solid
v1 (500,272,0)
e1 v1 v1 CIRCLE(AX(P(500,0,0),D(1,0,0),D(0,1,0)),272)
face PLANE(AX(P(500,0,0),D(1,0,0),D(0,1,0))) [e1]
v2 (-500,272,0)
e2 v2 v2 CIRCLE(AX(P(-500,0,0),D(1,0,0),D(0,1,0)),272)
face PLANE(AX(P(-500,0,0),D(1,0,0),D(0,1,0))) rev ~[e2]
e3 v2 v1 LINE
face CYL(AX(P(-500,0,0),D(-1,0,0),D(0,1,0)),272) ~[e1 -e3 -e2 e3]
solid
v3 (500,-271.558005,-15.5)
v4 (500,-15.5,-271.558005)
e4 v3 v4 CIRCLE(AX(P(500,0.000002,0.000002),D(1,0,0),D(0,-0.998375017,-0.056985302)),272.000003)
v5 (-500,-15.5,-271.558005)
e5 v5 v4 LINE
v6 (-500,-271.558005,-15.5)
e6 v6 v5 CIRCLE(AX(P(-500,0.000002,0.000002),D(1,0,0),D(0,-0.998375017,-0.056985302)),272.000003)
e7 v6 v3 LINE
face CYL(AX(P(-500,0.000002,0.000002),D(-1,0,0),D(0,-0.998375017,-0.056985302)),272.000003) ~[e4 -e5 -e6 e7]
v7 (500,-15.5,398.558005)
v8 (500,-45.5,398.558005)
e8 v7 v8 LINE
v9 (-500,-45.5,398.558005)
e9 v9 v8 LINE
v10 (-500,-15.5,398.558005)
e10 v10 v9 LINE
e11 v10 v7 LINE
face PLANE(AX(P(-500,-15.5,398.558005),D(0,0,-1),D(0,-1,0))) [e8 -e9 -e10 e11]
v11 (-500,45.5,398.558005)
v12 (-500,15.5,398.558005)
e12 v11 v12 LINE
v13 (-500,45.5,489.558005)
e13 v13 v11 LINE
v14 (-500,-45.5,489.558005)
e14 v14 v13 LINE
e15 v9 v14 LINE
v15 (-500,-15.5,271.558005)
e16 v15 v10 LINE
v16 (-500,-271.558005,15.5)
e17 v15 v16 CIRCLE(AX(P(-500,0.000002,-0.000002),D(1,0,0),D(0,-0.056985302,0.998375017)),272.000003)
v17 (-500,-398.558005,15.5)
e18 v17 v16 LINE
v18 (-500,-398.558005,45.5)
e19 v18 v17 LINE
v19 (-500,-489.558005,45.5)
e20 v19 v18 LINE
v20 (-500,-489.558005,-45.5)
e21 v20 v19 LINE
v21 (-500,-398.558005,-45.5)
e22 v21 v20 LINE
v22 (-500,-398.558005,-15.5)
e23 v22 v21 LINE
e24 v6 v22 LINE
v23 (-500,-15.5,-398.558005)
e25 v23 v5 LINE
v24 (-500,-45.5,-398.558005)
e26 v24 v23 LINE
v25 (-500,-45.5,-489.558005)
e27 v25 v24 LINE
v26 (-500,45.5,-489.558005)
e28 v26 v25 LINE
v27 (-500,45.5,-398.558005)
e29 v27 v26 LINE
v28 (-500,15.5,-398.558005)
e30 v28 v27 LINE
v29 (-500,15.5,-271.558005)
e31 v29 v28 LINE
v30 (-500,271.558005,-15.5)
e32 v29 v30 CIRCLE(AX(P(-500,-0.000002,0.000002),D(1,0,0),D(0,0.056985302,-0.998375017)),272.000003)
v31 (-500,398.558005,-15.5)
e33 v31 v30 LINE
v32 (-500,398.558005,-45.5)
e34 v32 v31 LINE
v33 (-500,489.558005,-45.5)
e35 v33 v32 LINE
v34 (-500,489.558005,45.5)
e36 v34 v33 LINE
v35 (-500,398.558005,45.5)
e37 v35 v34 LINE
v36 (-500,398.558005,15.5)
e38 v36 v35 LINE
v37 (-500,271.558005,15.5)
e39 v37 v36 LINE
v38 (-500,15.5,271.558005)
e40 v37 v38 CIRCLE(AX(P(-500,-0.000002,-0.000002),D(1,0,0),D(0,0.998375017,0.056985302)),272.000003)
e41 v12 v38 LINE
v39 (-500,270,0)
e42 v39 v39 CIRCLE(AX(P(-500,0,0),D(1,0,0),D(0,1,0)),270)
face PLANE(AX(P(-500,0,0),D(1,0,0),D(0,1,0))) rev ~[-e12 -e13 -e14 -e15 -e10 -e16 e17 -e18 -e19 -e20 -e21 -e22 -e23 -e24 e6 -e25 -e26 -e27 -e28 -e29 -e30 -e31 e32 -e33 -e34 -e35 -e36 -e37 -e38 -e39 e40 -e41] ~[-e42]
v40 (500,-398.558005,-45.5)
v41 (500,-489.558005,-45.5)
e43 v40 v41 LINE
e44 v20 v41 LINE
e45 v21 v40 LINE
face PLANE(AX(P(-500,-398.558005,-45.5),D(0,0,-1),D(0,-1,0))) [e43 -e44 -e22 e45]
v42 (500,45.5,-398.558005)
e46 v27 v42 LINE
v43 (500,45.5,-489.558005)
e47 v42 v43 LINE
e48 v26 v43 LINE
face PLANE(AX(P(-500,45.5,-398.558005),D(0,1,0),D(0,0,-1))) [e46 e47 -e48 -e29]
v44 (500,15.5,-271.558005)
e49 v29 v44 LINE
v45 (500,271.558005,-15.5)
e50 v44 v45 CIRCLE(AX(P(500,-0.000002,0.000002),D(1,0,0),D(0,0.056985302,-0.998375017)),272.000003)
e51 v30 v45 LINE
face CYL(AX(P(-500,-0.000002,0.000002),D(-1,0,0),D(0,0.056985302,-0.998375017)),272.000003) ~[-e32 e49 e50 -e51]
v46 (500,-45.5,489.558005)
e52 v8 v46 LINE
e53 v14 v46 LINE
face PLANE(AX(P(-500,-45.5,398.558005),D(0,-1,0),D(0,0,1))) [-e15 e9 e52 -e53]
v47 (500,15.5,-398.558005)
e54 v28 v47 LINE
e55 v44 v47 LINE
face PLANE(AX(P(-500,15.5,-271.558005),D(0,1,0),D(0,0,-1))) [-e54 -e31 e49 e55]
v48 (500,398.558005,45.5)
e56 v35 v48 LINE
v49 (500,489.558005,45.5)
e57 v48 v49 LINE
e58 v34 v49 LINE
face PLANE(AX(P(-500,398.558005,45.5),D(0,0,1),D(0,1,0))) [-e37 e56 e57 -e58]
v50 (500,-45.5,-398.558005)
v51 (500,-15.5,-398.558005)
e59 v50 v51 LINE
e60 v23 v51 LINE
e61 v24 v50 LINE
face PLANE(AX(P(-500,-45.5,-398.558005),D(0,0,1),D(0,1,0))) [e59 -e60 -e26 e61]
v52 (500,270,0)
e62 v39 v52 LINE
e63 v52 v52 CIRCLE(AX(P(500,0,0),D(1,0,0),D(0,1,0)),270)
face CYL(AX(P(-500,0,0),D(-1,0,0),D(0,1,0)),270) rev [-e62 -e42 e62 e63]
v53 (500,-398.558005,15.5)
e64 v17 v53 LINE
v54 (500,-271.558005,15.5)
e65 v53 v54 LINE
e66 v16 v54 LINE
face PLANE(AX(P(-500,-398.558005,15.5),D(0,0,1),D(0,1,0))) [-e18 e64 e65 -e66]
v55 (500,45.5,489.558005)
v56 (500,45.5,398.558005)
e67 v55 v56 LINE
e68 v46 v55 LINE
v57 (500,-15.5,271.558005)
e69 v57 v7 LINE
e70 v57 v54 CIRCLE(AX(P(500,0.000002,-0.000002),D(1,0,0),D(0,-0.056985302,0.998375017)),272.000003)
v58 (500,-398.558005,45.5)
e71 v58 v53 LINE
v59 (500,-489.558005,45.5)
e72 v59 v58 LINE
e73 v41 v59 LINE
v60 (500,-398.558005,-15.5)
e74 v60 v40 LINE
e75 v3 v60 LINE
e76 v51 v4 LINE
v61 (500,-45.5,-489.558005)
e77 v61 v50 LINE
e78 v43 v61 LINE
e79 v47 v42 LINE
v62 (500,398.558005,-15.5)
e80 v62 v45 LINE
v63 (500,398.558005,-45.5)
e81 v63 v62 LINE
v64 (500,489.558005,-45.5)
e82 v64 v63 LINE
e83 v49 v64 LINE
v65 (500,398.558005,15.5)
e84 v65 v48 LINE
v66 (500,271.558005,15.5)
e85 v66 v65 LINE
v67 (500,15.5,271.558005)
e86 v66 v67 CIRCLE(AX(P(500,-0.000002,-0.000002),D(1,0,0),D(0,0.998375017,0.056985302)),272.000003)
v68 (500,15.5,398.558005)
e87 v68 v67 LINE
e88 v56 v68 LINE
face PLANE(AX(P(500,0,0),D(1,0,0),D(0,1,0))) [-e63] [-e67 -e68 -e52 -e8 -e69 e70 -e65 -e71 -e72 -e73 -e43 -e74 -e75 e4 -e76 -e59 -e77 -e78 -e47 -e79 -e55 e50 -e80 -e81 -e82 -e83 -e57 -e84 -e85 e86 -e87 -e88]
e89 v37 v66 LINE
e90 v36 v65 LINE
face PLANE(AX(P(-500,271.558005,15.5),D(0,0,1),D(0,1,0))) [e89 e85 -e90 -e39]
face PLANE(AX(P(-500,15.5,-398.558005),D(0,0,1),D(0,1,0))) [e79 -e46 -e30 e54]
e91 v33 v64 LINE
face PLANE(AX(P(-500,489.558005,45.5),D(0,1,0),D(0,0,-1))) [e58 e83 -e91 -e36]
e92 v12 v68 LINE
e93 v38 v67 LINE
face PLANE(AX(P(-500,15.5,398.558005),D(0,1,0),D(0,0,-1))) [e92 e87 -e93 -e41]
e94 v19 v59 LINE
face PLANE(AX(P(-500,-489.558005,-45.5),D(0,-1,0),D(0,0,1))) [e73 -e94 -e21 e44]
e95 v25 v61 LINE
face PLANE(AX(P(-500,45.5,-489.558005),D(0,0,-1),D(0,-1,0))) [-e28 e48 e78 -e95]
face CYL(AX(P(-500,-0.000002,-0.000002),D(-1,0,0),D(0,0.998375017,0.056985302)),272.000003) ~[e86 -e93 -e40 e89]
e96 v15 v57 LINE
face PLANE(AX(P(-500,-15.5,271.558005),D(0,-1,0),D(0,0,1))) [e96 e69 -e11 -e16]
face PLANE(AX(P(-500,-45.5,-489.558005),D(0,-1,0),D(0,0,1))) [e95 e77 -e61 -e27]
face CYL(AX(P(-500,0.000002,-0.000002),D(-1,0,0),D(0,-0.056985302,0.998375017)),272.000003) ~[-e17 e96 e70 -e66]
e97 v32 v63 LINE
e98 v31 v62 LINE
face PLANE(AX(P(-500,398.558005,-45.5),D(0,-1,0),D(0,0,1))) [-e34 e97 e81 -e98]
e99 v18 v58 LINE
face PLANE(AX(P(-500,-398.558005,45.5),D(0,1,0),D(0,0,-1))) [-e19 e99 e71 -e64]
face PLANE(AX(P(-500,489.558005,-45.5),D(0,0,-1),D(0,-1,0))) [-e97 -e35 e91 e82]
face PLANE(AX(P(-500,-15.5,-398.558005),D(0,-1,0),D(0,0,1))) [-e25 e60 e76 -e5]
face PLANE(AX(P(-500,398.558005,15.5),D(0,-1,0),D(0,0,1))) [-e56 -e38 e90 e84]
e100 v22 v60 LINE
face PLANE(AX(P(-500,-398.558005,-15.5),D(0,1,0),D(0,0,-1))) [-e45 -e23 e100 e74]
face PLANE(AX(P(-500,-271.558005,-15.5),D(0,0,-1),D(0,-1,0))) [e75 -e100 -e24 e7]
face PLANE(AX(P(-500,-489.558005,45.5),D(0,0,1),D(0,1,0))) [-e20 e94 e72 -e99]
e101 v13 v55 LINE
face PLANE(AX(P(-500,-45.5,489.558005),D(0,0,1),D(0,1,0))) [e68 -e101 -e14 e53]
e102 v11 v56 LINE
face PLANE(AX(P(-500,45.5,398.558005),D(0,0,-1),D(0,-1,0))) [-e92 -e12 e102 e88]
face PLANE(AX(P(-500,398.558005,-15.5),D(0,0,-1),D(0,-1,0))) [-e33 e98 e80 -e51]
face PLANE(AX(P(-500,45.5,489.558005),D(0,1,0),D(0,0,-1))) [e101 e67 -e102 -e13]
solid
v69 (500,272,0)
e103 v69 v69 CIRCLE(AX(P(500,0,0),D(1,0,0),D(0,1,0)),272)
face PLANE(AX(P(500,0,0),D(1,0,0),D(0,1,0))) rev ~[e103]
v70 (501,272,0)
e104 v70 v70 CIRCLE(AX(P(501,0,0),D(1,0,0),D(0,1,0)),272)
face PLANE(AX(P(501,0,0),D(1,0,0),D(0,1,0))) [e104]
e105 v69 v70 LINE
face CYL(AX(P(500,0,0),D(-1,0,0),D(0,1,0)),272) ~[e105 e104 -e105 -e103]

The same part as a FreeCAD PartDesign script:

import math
import FreeCAD as App
import Part
import Sketcher

V = App.Vector

doc = App.newDocument("Part")
body = doc.addObject("PartDesign::Body", "Body")

# Sketch on YZ plane
sketch1 = body.newObject("Sketcher::SketchObject", "Sketch")
sketch1.AttachmentSupport = (doc.getObject("YZ_Plane"), [""])
sketch1.MapMode = "FlatFace"
sketch1.AttachmentOffset = App.Placement(V(0, 0, -500), App.Rotation())
sketch1.addGeometry(Part.Circle(V(0, 0, 0), V(0, 0, 1), 272), False)
sketch1.addConstraint([
    Sketcher.Constraint("Coincident", 0, 3, -1, 1),
    Sketcher.Constraint("Diameter", 0, 544.0),
])
pad1 = body.newObject("PartDesign::Pad", "Pad")
pad1.Profile = sketch1
pad1.Length = 1000
body2 = doc.addObject("PartDesign::Body", "Body001")

# Sketch on YZ plane
sketch2 = body2.newObject("Sketcher::SketchObject", "Sketch001")
sketch2.AttachmentSupport = (doc.getObject("YZ_Plane001"), [""])
sketch2.MapMode = "FlatFace"
sketch2.AttachmentOffset = App.Placement(V(0, 0, 500), App.Rotation())
sketch2.addGeometry(Part.Circle(V(0, 0, 0), V(0, 0, 1), 272), False)
sketch2.addConstraint([
    Sketcher.Constraint("Coincident", 0, 3, -1, 1),
    Sketcher.Constraint("Diameter", 0, 544.0),
])
pad2 = body2.newObject("PartDesign::Pad", "Pad001")
pad2.Profile = sketch2
pad2.Length = 1
body3 = doc.addObject("PartDesign::Body", "Body002")

# Sketch on YZ plane
sketch3 = body3.newObject("Sketcher::SketchObject", "Sketch002")
sketch3.AttachmentSupport = (doc.getObject("YZ_Plane002"), [""])
sketch3.MapMode = "FlatFace"
sketch3.AttachmentOffset = App.Placement(V(0, 0, -500), App.Rotation())
sketch3.addGeometry([
    Part.ArcOfCircle(Part.Circle(V(0, 0, 0), V(0, 0, 1), 272), math.radians(93), math.radians(177)),  # 0
    Part.LineSegment(V(-272, 16, 0), V(-399, 16, 0)),  # 1
    Part.LineSegment(V(-399, 16, 0), V(-399, 46, 0)),  # 2
    Part.LineSegment(V(-399, 46, 0), V(-490, 46, 0)),  # 3
    Part.LineSegment(V(-490, 46, 0), V(-490, -46, 0)),  # 4
    Part.LineSegment(V(-490, -46, 0), V(-399, -46, 0)),  # 5
    Part.LineSegment(V(-399, -46, 0), V(-399, -16, 0)),  # 6
    Part.LineSegment(V(-399, -16, 0), V(-272, -16, 0)),  # 7
    Part.ArcOfCircle(Part.Circle(V(0, 0, 0), V(0, 0, 1), 272), math.radians(-177), math.radians(-93)),  # 8
    Part.LineSegment(V(-16, -272, 0), V(-16, -399, 0)),  # 9
    Part.LineSegment(V(-16, -399, 0), V(-46, -399, 0)),  # 10
    Part.LineSegment(V(-46, -399, 0), V(-46, -490, 0)),  # 11
    Part.LineSegment(V(-46, -490, 0), V(46, -490, 0)),  # 12
    Part.LineSegment(V(46, -490, 0), V(46, -399, 0)),  # 13
    Part.LineSegment(V(46, -399, 0), V(16, -399, 0)),  # 14
    Part.LineSegment(V(16, -399, 0), V(16, -272, 0)),  # 15
    Part.ArcOfCircle(Part.Circle(V(0, 0, 0), V(0, 0, 1), 272), math.radians(-87), math.radians(-3)),  # 16
    Part.LineSegment(V(272, -16, 0), V(399, -16, 0)),  # 17
    Part.LineSegment(V(399, -16, 0), V(399, -46, 0)),  # 18
    Part.LineSegment(V(399, -46, 0), V(490, -46, 0)),  # 19
    Part.LineSegment(V(490, -46, 0), V(490, 46, 0)),  # 20
    Part.LineSegment(V(490, 46, 0), V(399, 46, 0)),  # 21
    Part.LineSegment(V(399, 46, 0), V(399, 16, 0)),  # 22
    Part.LineSegment(V(399, 16, 0), V(272, 16, 0)),  # 23
    Part.ArcOfCircle(Part.Circle(V(0, 0, 0), V(0, 0, 1), 272), math.radians(3), math.radians(87)),  # 24
    Part.LineSegment(V(16, 272, 0), V(16, 399, 0)),  # 25
    Part.LineSegment(V(16, 399, 0), V(46, 399, 0)),  # 26
    Part.LineSegment(V(46, 399, 0), V(46, 490, 0)),  # 27
    Part.LineSegment(V(46, 490, 0), V(-46, 490, 0)),  # 28
    Part.LineSegment(V(-46, 490, 0), V(-46, 399, 0)),  # 29
    Part.LineSegment(V(-46, 399, 0), V(-16, 399, 0)),  # 30
    Part.LineSegment(V(-16, 399, 0), V(-16, 272, 0)),  # 31
    Part.Circle(V(0, 0, 0), V(0, 0, 1), 270),  # 32
], False)
sketch3.addConstraint([
    Sketcher.Constraint("Coincident", 0, 2, 1, 1),
    Sketcher.Constraint("Coincident", 1, 2, 2, 1),
    Sketcher.Constraint("Coincident", 2, 2, 3, 1),
    Sketcher.Constraint("Coincident", 3, 2, 4, 1),
    Sketcher.Constraint("Coincident", 4, 2, 5, 1),
    Sketcher.Constraint("Coincident", 5, 2, 6, 1),
    Sketcher.Constraint("Coincident", 6, 2, 7, 1),
    Sketcher.Constraint("Coincident", 7, 2, 8, 1),
    Sketcher.Constraint("Coincident", 8, 2, 9, 1),
    Sketcher.Constraint("Coincident", 9, 2, 10, 1),
    Sketcher.Constraint("Coincident", 10, 2, 11, 1),
    Sketcher.Constraint("Coincident", 11, 2, 12, 1),
    Sketcher.Constraint("Coincident", 12, 2, 13, 1),
    Sketcher.Constraint("Coincident", 13, 2, 14, 1),
    Sketcher.Constraint("Coincident", 14, 2, 15, 1),
    Sketcher.Constraint("Coincident", 15, 2, 16, 1),
    Sketcher.Constraint("Coincident", 16, 2, 17, 1),
    Sketcher.Constraint("Coincident", 17, 2, 18, 1),
    Sketcher.Constraint("Coincident", 18, 2, 19, 1),
    Sketcher.Constraint("Coincident", 19, 2, 20, 1),
    Sketcher.Constraint("Coincident", 20, 2, 21, 1),
    Sketcher.Constraint("Coincident", 21, 2, 22, 1),
    Sketcher.Constraint("Coincident", 22, 2, 23, 1),
    Sketcher.Constraint("Coincident", 23, 2, 24, 1),
    Sketcher.Constraint("Coincident", 24, 2, 25, 1),
    Sketcher.Constraint("Coincident", 25, 2, 26, 1),
    Sketcher.Constraint("Coincident", 26, 2, 27, 1),
    Sketcher.Constraint("Coincident", 27, 2, 28, 1),
    Sketcher.Constraint("Coincident", 28, 2, 29, 1),
    Sketcher.Constraint("Coincident", 29, 2, 30, 1),
    Sketcher.Constraint("Coincident", 30, 2, 31, 1),
    Sketcher.Constraint("Coincident", 31, 2, 0, 1),
    Sketcher.Constraint("Horizontal", 1),
    Sketcher.Constraint("Vertical", 2),
    Sketcher.Constraint("Horizontal", 3),
    Sketcher.Constraint("Vertical", 4),
    Sketcher.Constraint("Horizontal", 5),
    Sketcher.Constraint("Vertical", 6),
    Sketcher.Constraint("Horizontal", 7),
    Sketcher.Constraint("Vertical", 9),
    Sketcher.Constraint("Horizontal", 10),
    Sketcher.Constraint("Vertical", 11),
    Sketcher.Constraint("Horizontal", 12),
    Sketcher.Constraint("Vertical", 13),
    Sketcher.Constraint("Horizontal", 14),
    Sketcher.Constraint("Vertical", 15),
    Sketcher.Constraint("Horizontal", 17),
    Sketcher.Constraint("Vertical", 18),
    Sketcher.Constraint("Horizontal", 19),
    Sketcher.Constraint("Vertical", 20),
    Sketcher.Constraint("Horizontal", 21),
    Sketcher.Constraint("Vertical", 22),
    Sketcher.Constraint("Horizontal", 23),
    Sketcher.Constraint("Vertical", 25),
    Sketcher.Constraint("Horizontal", 26),
    Sketcher.Constraint("Vertical", 27),
    Sketcher.Constraint("Horizontal", 28),
    Sketcher.Constraint("Vertical", 29),
    Sketcher.Constraint("Horizontal", 30),
    Sketcher.Constraint("Vertical", 31),
    Sketcher.Constraint("Coincident", 0, 3, -1, 1),
    Sketcher.Constraint("Coincident", 8, 3, -1, 1),
    Sketcher.Constraint("Coincident", 16, 3, -1, 1),
    Sketcher.Constraint("Coincident", 24, 3, -1, 1),
    Sketcher.Constraint("Coincident", 32, 3, -1, 1),
    Sketcher.Constraint("Equal", 0, 8),
    Sketcher.Constraint("Equal", 8, 16),
    Sketcher.Constraint("Equal", 16, 24),
    Sketcher.Constraint("Symmetric", 1, 2, 17, 2, -1, 1),
    Sketcher.Constraint("Symmetric", 3, 2, 19, 2, -1, 1),
    Sketcher.Constraint("Symmetric", 5, 2, 21, 2, -1, 1),
    Sketcher.Constraint("Symmetric", 9, 2, 25, 2, -1, 1),
    Sketcher.Constraint("Symmetric", 11, 2, 27, 2, -1, 1),
    Sketcher.Constraint("Symmetric", 13, 2, 29, 2, -1, 1),
    Sketcher.Constraint("Symmetric", 10, 2, 13, 2, -2),
    Sketcher.Constraint("Symmetric", 6, 2, 17, 2, -2),
    Sketcher.Constraint("Horizontal", 8, 2, 15, 2),
    Sketcher.Constraint("Horizontal", 5, 2, 18, 2),
    Sketcher.Constraint("Horizontal", 1, 2, 22, 2),
    Sketcher.Constraint("Horizontal", 24, 2, 31, 2),
    Sketcher.Constraint("Equal", 5, 12),
    Sketcher.Constraint("Equal", 30, 2),
    Sketcher.Constraint("Equal", 28, 4),
    Sketcher.Constraint("Equal", 23, 9),
    Sketcher.Constraint("Equal", 4, 11),
    Sketcher.Constraint("Diameter", 32, 540.0),
    Sketcher.Constraint("DistanceX", 1, 2, 1, 1, 127.0),
    Sketcher.Constraint("DistanceX", 3, 2, 3, 1, 91.0),
    Sketcher.Constraint("DistanceX", 10, 2, 10, 1, 30.0),
    Sketcher.Constraint("Radius", 0, 272.000003),
])
pad3 = body3.newObject("PartDesign::Pad", "Pad002")
pad3.Profile = sketch3
pad3.Length = 1000

doc.recompute()
